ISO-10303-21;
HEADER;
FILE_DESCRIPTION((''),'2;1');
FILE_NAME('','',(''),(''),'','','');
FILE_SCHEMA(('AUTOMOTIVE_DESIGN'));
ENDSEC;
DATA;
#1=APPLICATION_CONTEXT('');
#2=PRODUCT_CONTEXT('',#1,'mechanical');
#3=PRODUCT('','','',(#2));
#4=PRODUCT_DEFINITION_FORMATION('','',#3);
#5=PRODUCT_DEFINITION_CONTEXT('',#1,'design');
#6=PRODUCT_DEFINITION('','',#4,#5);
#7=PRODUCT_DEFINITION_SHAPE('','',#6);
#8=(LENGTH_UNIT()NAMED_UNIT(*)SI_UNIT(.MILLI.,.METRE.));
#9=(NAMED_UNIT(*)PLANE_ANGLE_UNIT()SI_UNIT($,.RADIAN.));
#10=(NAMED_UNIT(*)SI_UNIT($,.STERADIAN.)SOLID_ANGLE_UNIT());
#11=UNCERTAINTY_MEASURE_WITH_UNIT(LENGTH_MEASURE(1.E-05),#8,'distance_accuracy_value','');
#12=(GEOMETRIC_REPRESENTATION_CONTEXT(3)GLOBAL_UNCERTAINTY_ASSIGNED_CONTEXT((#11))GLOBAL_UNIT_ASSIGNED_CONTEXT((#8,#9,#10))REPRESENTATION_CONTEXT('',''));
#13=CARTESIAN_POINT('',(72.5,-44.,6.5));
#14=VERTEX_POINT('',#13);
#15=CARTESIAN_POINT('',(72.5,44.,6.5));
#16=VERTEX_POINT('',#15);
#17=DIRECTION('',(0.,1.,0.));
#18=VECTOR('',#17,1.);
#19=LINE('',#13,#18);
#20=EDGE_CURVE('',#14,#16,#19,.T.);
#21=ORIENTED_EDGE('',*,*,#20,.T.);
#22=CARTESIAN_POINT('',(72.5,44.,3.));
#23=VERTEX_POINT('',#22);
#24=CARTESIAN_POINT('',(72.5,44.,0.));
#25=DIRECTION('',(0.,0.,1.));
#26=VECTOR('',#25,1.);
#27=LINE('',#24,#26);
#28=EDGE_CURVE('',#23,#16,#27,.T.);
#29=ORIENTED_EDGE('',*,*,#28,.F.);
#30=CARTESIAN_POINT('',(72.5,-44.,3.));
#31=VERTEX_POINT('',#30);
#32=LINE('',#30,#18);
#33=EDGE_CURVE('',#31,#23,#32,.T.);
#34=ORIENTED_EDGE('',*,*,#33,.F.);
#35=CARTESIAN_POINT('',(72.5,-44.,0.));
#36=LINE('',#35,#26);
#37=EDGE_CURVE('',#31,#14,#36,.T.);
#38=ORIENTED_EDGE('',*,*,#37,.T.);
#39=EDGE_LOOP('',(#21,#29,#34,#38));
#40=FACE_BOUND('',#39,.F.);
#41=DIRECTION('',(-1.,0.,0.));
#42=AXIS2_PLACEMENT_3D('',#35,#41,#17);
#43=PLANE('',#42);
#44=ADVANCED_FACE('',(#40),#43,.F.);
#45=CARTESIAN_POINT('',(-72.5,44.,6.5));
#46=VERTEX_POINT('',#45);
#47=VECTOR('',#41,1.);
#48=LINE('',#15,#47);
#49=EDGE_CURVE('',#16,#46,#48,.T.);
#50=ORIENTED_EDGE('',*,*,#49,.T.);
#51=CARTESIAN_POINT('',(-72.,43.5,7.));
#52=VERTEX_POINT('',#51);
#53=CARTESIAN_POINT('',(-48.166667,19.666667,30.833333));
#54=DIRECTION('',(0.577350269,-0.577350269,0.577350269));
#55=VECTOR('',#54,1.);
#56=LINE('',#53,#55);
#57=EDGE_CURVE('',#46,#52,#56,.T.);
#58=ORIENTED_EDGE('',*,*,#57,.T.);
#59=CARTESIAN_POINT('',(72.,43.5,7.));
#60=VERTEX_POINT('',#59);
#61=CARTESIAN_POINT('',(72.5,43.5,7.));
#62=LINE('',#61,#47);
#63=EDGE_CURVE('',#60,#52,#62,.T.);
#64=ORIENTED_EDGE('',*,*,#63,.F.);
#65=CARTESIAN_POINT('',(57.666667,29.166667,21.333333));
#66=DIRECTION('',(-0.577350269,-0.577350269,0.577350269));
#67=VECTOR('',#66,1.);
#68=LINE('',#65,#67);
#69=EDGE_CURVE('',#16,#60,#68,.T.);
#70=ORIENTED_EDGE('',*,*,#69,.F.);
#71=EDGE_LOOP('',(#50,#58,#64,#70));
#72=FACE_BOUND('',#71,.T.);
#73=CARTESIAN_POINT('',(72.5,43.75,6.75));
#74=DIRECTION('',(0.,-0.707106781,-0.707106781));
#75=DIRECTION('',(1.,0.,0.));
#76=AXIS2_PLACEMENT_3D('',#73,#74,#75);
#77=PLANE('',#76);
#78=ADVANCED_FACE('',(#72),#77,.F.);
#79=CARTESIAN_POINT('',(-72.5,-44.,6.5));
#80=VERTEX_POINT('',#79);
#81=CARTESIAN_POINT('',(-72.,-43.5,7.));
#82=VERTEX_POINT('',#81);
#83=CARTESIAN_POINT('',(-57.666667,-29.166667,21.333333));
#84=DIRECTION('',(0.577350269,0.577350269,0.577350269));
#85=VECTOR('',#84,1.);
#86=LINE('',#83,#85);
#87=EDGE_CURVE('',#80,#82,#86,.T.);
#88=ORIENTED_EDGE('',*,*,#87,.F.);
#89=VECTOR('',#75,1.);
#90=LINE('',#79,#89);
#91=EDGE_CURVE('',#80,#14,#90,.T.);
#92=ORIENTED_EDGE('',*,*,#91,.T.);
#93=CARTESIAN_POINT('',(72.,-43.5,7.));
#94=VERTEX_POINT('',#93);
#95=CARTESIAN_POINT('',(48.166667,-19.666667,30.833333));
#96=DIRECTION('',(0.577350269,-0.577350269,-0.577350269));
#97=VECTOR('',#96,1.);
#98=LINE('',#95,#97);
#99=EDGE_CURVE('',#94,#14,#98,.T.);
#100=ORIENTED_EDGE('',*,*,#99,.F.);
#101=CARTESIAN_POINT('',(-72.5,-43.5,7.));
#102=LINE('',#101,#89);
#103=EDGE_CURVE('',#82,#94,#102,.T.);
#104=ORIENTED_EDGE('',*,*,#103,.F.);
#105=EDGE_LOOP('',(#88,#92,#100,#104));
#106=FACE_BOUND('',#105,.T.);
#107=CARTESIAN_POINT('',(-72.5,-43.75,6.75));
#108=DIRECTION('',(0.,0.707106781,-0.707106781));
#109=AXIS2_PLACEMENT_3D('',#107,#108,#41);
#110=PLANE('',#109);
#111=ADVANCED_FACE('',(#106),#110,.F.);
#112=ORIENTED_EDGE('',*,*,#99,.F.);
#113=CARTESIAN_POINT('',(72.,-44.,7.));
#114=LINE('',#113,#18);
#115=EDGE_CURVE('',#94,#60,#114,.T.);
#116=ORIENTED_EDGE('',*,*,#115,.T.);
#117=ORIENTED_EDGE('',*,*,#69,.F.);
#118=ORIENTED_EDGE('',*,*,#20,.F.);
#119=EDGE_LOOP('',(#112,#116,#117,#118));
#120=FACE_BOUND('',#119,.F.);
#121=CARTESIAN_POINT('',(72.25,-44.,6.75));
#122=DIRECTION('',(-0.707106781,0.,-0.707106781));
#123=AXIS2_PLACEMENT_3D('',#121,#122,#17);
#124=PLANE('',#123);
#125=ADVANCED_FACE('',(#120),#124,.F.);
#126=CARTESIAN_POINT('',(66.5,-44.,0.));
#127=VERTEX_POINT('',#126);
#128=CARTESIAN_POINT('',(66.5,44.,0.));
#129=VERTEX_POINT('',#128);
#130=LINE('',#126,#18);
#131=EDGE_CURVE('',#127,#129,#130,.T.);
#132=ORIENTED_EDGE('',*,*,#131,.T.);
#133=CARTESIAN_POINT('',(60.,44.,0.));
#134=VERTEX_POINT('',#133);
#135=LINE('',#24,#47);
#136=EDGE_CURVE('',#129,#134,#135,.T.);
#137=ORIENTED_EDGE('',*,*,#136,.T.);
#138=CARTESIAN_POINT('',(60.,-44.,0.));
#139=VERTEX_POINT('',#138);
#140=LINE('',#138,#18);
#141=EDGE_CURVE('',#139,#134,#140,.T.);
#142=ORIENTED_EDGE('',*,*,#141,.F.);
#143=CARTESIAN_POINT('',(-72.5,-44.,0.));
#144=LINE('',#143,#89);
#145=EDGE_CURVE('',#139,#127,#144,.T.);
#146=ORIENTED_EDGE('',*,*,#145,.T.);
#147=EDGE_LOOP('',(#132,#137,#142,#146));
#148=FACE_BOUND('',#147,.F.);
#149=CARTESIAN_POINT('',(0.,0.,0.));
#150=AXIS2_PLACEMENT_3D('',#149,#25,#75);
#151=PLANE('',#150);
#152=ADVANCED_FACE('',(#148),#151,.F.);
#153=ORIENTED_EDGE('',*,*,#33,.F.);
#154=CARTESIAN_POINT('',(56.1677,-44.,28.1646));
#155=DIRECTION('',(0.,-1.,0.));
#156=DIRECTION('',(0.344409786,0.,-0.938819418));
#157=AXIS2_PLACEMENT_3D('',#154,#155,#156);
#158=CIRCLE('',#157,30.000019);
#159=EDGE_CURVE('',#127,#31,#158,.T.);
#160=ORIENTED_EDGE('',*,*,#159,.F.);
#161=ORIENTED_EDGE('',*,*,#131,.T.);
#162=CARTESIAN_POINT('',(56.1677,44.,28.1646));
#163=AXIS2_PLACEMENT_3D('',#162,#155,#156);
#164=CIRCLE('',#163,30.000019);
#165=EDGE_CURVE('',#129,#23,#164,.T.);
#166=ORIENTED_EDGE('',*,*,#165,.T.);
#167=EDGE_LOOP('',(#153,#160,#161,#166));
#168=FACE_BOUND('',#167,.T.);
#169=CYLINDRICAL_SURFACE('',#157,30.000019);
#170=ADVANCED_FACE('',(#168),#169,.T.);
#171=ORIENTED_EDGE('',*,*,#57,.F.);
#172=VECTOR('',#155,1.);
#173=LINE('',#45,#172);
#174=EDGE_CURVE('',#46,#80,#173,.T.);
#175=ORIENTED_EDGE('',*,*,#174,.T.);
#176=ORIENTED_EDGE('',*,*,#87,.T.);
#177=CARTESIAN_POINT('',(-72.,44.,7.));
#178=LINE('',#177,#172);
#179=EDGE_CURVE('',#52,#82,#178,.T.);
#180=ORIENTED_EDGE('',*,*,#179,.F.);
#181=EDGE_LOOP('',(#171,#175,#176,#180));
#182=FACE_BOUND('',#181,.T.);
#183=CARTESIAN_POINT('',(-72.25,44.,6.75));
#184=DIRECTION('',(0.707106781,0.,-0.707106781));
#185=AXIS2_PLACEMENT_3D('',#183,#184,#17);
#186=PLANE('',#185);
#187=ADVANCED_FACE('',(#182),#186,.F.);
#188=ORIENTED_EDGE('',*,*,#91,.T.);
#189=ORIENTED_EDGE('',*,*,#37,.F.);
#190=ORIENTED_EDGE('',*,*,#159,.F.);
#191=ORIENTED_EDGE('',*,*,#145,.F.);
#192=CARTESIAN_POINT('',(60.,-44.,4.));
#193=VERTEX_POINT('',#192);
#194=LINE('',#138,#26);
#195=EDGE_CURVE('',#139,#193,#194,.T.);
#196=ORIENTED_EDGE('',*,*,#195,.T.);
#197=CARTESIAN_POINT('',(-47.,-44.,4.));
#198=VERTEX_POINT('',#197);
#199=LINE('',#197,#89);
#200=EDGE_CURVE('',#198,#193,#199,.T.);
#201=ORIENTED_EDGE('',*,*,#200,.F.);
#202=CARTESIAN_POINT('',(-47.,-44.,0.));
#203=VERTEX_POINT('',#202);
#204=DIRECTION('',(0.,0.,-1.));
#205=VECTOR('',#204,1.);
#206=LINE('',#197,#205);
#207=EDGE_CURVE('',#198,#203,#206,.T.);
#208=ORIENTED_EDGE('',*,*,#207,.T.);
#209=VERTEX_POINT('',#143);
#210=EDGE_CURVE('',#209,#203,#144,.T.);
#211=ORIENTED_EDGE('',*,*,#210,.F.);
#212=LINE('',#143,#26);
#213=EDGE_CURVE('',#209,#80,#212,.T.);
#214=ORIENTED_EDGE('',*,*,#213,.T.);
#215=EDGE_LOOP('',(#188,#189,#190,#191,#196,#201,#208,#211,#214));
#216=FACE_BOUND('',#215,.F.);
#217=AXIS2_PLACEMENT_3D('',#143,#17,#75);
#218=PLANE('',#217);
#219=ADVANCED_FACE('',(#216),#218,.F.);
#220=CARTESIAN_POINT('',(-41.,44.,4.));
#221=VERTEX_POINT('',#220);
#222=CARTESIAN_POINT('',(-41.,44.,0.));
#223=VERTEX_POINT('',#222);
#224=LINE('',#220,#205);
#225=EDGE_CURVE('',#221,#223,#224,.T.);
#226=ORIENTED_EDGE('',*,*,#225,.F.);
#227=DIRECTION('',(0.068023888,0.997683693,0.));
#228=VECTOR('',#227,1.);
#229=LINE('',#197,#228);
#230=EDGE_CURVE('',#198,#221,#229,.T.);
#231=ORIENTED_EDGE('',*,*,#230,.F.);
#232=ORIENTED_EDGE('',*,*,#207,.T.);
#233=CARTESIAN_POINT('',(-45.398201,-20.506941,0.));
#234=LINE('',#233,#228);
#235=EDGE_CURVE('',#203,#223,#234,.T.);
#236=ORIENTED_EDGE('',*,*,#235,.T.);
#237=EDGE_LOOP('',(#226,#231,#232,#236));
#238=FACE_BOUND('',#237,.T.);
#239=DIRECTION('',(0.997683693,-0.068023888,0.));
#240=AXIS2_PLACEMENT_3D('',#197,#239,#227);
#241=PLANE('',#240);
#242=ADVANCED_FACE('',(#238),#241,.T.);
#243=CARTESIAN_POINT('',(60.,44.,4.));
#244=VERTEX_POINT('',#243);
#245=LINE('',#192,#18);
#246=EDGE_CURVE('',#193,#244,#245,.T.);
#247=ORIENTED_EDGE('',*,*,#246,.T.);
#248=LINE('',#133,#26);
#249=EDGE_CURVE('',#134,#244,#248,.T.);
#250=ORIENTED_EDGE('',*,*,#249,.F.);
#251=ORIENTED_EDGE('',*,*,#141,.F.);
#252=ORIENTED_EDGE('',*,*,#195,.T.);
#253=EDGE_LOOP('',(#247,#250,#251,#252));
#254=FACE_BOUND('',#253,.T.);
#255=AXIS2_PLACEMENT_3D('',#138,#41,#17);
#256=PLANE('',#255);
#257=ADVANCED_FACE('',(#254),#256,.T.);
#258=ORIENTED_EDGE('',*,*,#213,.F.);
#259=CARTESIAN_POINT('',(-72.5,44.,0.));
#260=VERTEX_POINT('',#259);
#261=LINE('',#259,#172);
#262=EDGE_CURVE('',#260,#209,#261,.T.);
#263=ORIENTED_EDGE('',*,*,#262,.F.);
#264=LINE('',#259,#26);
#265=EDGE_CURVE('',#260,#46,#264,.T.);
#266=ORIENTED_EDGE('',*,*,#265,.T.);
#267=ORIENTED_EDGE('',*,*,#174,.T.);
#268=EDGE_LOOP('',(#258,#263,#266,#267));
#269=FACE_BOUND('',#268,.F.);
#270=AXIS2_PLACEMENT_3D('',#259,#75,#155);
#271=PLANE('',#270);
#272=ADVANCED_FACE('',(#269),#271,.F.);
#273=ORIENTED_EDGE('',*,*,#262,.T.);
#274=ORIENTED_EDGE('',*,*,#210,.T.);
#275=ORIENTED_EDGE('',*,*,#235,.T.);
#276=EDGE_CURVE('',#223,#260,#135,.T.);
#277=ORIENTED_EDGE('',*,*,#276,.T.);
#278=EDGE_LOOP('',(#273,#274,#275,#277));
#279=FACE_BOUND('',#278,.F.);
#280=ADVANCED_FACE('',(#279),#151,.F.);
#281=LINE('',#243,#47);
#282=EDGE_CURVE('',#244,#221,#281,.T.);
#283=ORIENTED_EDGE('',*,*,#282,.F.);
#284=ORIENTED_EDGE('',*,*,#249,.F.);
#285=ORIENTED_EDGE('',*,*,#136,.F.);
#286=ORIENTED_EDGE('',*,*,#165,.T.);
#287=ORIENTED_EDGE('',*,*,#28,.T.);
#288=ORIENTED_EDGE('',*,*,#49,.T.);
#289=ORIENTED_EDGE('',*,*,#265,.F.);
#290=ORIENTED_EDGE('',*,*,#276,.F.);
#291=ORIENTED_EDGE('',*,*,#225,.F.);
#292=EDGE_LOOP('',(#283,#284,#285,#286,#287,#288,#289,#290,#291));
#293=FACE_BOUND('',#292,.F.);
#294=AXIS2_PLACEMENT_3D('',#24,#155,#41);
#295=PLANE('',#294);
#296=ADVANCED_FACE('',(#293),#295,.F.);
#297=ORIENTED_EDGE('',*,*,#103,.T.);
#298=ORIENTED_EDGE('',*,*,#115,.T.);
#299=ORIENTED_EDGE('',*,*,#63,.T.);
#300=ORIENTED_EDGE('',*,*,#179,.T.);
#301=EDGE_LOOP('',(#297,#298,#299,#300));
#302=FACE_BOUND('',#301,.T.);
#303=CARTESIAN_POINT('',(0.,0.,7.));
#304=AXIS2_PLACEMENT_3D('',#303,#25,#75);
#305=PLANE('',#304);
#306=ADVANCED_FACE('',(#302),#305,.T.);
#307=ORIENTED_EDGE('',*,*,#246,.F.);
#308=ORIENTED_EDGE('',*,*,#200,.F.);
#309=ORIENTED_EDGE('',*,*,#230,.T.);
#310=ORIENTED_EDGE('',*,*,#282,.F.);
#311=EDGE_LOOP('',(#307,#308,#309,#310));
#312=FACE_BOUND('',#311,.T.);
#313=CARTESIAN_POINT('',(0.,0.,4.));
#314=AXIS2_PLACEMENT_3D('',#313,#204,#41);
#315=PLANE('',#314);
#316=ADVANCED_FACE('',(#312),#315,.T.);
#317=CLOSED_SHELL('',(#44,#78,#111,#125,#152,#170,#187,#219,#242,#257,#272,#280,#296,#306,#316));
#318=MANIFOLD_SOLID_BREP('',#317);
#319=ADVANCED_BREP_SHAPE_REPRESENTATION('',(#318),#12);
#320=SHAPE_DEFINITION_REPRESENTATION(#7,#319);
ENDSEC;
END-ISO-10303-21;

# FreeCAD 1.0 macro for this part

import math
import FreeCAD as App
import Part
import Sketcher
from FreeCAD import Vector


def edges_at(feature, points):
    """Names of the edges that pass closest to the given points."""
    edges = feature.Shape.Edges
    near = lambda p: min(range(len(edges)), key=lambda i: edges[i].distToShape(Part.Vertex(*p))[0])
    return sorted({f"Edge{near(p) + 1}" for p in points})

doc = App.newDocument("Part")
body = doc.addObject("PartDesign::Body", "Body")

sketch1 = body.newObject("Sketcher::SketchObject", "Sketch")
sketch1.AttachmentSupport = (doc.getObject("XY_Plane"), [""])
sketch1.MapMode = "FlatFace"
sketch1.addGeometry([
    Part.LineSegment(Vector(-72, 44, 0), Vector(-72, -44, 0)),
    Part.LineSegment(Vector(-72, -44, 0), Vector(72, -44, 0)),
    Part.LineSegment(Vector(72, -44, 0), Vector(72, 44, 0)),
    Part.LineSegment(Vector(72, 44, 0), Vector(-72, 44, 0)),
], False)
sketch1.addConstraint([
    Sketcher.Constraint("Coincident", 0, 2, 1, 1),
    Sketcher.Constraint("Coincident", 1, 2, 2, 1),
    Sketcher.Constraint("Coincident", 2, 2, 3, 1),
    Sketcher.Constraint("Coincident", 3, 2, 0, 1),
    Sketcher.Constraint("Vertical", 0),
    Sketcher.Constraint("Horizontal", 1),
    Sketcher.Constraint("Vertical", 2),
    Sketcher.Constraint("Horizontal", 3),
    Sketcher.Constraint("Symmetric", 0, 2, 2, 2, -1, 1),
    Sketcher.Constraint("DistanceX", 1, 1, 1, 2, 145.0),
    Sketcher.Constraint("DistanceY", 0, 2, 0, 1, 88.0),
])
pad1 = body.newObject("PartDesign::Pad", "Pad")
pad1.Profile = sketch1
pad1.Length = 7

sketch2 = body.newObject("Sketcher::SketchObject", "Sketch001")
sketch2.AttachmentSupport = (doc.getObject("XY_Plane"), [""])
sketch2.MapMode = "FlatFace"
sketch2.addGeometry([
    Part.LineSegment(Vector(60, -44, 0), Vector(-40, -44, 0)),
    Part.LineSegment(Vector(-40, -44, 0), Vector(-40, 44, 0)),
    Part.LineSegment(Vector(-40, 44, 0), Vector(60, 44, 0)),
    Part.LineSegment(Vector(60, 44, 0), Vector(60, -44, 0)),
], False)
sketch2.addConstraint([
    Sketcher.Constraint("Coincident", 0, 2, 1, 1),
    Sketcher.Constraint("Coincident", 1, 2, 2, 1),
    Sketcher.Constraint("Coincident", 2, 2, 3, 1),
    Sketcher.Constraint("Coincident", 3, 2, 0, 1),
    Sketcher.Constraint("Horizontal", 0),
    Sketcher.Constraint("Vertical", 1),
    Sketcher.Constraint("Horizontal", 2),
    Sketcher.Constraint("Vertical", 3),
    Sketcher.Constraint("DistanceX", 0, 2, 0, 1, 100.0),
    Sketcher.Constraint("DistanceY", 1, 1, 1, 2, 88.0),
    Sketcher.Constraint("DistanceX", 0, 2, -1, 1, 40.0),
    Sketcher.Constraint("DistanceY", 0, 2, -1, 1, 44.0),
])
pocket1 = body.newObject("PartDesign::Pocket", "Pocket")
pocket1.Profile = sketch2
pocket1.Length = 4
pocket1.Reversed = True

sketch3 = body.newObject("Sketcher::SketchObject", "Sketch002")
sketch3.AttachmentSupport = (doc.getObject("XZ_Plane"), [""])
sketch3.MapMode = "FlatFace"
sketch3.AttachmentOffset = App.Placement(Vector(0, 0, 44), App.Rotation())
sketch3.addGeometry([
    Part.LineSegment(Vector(66.5, 0, 0), Vector(72.5, 0, 0)),
    Part.LineSegment(Vector(72.5, 0, 0), Vector(72.5, 3, 0)),
    Part.ArcOfCircle(Part.Circle(Vector(56.2, 28.2, 0), Vector(0, 0, 1), 30), math.radians(-69.85), math.radians(-57.02)),
], False)
sketch3.addConstraint([
    Sketcher.Constraint("Coincident", 0, 2, 1, 1),
    Sketcher.Constraint("Coincident", 1, 2, 2, 2),
    Sketcher.Constraint("Coincident", 2, 1, 0, 1),
    Sketcher.Constraint("Horizontal", 0),
    Sketcher.Constraint("Vertical", 1),
    Sketcher.Constraint("PointOnObject", 0, 2, -1),
    Sketcher.Constraint("Radius", 2, 30.0),
    Sketcher.Constraint("DistanceX", 0, 1, 0, 2, 6.0),
    Sketcher.Constraint("DistanceY", 1, 1, 1, 2, 3.0),
    Sketcher.Constraint("DistanceX", -1, 1, 0, 2, 72.5),
])
pocket2 = body.newObject("PartDesign::Pocket", "Pocket001")
pocket2.Profile = sketch3
pocket2.Type = "ThroughAll"
doc.recompute()

chamfer = body.newObject("PartDesign::Chamfer", "Chamfer")
chamfer.Base = (pocket2, edges_at(pocket2, [
    (-72.5, 0, 7),
    (0, 44, 7),
    (72.5, 0, 7),
    (0, -44, 7),
]))
chamfer.Size = 0.5

sketch4 = body.newObject("Sketcher::SketchObject", "Sketch003")
sketch4.AttachmentSupport = (doc.getObject("XY_Plane"), [""])
sketch4.MapMode = "FlatFace"
sketch4.AttachmentOffset = App.Placement(Vector(0, 0, 4), App.Rotation())
sketch4.addGeometry([
    Part.LineSegment(Vector(-40, -44, 0), Vector(-47, -44, 0)),
    Part.LineSegment(Vector(-47, -44, 0), Vector(-41, 44, 0)),
    Part.LineSegment(Vector(-41, 44, 0), Vector(-40, 44, 0)),
    Part.LineSegment(Vector(-40, 44, 0), Vector(-40, -44, 0)),
], False)
sketch4.addConstraint([
    Sketcher.Constraint("Coincident", 0, 2, 1, 1),
    Sketcher.Constraint("Coincident", 1, 2, 2, 1),
    Sketcher.Constraint("Coincident", 2, 2, 3, 1),
    Sketcher.Constraint("Coincident", 3, 2, 0, 1),
    Sketcher.Constraint("Horizontal", 0),
    Sketcher.Constraint("Horizontal", 2),
    Sketcher.Constraint("Vertical", 3),
    Sketcher.Constraint("DistanceX", 0, 2, 0, 1, 7.0),
    Sketcher.Constraint("DistanceX", 2, 1, 2, 2, 1.0),
    Sketcher.Constraint("DistanceY", 3, 2, 3, 1, 88.0),
    Sketcher.Constraint("DistanceX", 0, 2, -1, 1, 47.0),
    Sketcher.Constraint("DistanceY", 0, 2, -1, 1, 44.0),
])
pocket3 = body.newObject("PartDesign::Pocket", "Pocket002")
pocket3.Profile = sketch4
pocket3.Type = "ThroughAll"

doc.recompute()
